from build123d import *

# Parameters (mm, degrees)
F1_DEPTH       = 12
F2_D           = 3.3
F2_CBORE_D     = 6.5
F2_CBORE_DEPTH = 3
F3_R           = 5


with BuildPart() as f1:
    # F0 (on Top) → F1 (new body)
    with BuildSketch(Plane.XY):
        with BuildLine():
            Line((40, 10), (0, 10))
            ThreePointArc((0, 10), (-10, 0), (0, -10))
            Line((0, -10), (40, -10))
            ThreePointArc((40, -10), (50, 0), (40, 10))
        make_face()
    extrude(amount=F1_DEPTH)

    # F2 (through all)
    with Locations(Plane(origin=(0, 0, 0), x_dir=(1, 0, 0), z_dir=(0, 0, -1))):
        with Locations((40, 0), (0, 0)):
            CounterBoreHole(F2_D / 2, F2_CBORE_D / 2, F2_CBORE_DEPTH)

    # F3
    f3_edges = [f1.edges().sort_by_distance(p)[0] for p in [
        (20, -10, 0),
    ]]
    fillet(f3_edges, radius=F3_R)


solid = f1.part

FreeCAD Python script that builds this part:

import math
import FreeCAD as App
import Part
import Sketcher
from FreeCAD import Vector
Q = App.Units.Quantity


def edges_at(feature, points):
    """Names of the edges that pass closest to the given points."""
    edges = feature.Shape.Edges
    near = lambda p: min(range(len(edges)), key=lambda i: edges[i].distToShape(Part.Vertex(*p))[0])
    return sorted({f"Edge{near(p) + 1}" for p in points})

doc = App.newDocument("Part")
body = doc.addObject("PartDesign::Body", "Body")

# Sketch on XY plane
sketch1 = doc.addObject("Sketcher::SketchObject", "Sketch")
body.addObject(sketch1)
sketch1.AttachmentSupport = (doc.XY_Plane, [""])
sketch1.MapMode = "FlatFace"
sketch1.addGeometry([
    Part.LineSegment(Vector(40, 10, 0), Vector(0, 10, 0)),
    Part.ArcOfCircle(Part.Circle(Vector(0, 0, 0), Vector(0, 0, 1), 10), math.radians(90), math.radians(270)),
    Part.LineSegment(Vector(0, -10, 0), Vector(40, -10, 0)),
    Part.ArcOfCircle(Part.Circle(Vector(40, 0, 0), Vector(0, 0, 1), 10), math.radians(-90), math.radians(90)),
], False)
sketch1.addConstraint([
    Sketcher.Constraint("Tangent", 0, 2, 1, 1),
    Sketcher.Constraint("Tangent", 1, 2, 2, 1),
    Sketcher.Constraint("Tangent", 2, 2, 3, 1),
    Sketcher.Constraint("Tangent", 3, 2, 0, 1),
    Sketcher.Constraint("Horizontal", 0),
    Sketcher.Constraint("Horizontal", 2),
    Sketcher.Constraint("Coincident", 1, 3, -1, 1),
    Sketcher.Constraint("Radius", 1, Q("10 mm")),
    Sketcher.Constraint("DistanceX", 0, 2, 0, 1, Q("40 mm")),
])
pad1 = doc.addObject("PartDesign::Pad", "Pad")
body.addObject(pad1)
pad1.Profile = sketch1
pad1.Length = 12

# Sketch on XY plane
sketch2 = doc.addObject("Sketcher::SketchObject", "Sketch001")
body.addObject(sketch2)
sketch2.AttachmentSupport = (doc.XY_Plane, [""])
sketch2.MapMode = "FlatFace"
sketch2.addGeometry([
    Part.Circle(Vector(40, 0, 0), Vector(0, 0, 1), 1.6),
    Part.Circle(Vector(0, 0, 0), Vector(0, 0, 1), 1.6),
], False)
sketch2.addConstraint([
    Sketcher.Constraint("Coincident", 1, 3, -1, 1),
    Sketcher.Constraint("Equal", 0, 1),
    Sketcher.Constraint("PointOnObject", 0, 3, -1),
    Sketcher.Constraint("Diameter", 0, Q("3.3 mm")),
    Sketcher.Constraint("DistanceX", -1, 1, 0, 3, Q("40 mm")),
])
doc.recompute()
hole = doc.addObject("PartDesign::Hole", "Hole")
body.addObject(hole)
hole.Profile = sketch2
hole.ThreadType = "None"
hole.Diameter = 3.3
hole.DepthType = "ThroughAll"
hole.HoleCutType = "Counterbore"
hole.HoleCutDiameter = 6.5
hole.HoleCutDepth = 3
hole.Reversed = True
doc.recompute()

fillet = doc.addObject("PartDesign::Fillet", "Fillet")
body.addObject(fillet)
fillet.Base = (hole, edges_at(hole, [(20, -10, 0)]))
fillet.Radius = 5

doc.recompute()
